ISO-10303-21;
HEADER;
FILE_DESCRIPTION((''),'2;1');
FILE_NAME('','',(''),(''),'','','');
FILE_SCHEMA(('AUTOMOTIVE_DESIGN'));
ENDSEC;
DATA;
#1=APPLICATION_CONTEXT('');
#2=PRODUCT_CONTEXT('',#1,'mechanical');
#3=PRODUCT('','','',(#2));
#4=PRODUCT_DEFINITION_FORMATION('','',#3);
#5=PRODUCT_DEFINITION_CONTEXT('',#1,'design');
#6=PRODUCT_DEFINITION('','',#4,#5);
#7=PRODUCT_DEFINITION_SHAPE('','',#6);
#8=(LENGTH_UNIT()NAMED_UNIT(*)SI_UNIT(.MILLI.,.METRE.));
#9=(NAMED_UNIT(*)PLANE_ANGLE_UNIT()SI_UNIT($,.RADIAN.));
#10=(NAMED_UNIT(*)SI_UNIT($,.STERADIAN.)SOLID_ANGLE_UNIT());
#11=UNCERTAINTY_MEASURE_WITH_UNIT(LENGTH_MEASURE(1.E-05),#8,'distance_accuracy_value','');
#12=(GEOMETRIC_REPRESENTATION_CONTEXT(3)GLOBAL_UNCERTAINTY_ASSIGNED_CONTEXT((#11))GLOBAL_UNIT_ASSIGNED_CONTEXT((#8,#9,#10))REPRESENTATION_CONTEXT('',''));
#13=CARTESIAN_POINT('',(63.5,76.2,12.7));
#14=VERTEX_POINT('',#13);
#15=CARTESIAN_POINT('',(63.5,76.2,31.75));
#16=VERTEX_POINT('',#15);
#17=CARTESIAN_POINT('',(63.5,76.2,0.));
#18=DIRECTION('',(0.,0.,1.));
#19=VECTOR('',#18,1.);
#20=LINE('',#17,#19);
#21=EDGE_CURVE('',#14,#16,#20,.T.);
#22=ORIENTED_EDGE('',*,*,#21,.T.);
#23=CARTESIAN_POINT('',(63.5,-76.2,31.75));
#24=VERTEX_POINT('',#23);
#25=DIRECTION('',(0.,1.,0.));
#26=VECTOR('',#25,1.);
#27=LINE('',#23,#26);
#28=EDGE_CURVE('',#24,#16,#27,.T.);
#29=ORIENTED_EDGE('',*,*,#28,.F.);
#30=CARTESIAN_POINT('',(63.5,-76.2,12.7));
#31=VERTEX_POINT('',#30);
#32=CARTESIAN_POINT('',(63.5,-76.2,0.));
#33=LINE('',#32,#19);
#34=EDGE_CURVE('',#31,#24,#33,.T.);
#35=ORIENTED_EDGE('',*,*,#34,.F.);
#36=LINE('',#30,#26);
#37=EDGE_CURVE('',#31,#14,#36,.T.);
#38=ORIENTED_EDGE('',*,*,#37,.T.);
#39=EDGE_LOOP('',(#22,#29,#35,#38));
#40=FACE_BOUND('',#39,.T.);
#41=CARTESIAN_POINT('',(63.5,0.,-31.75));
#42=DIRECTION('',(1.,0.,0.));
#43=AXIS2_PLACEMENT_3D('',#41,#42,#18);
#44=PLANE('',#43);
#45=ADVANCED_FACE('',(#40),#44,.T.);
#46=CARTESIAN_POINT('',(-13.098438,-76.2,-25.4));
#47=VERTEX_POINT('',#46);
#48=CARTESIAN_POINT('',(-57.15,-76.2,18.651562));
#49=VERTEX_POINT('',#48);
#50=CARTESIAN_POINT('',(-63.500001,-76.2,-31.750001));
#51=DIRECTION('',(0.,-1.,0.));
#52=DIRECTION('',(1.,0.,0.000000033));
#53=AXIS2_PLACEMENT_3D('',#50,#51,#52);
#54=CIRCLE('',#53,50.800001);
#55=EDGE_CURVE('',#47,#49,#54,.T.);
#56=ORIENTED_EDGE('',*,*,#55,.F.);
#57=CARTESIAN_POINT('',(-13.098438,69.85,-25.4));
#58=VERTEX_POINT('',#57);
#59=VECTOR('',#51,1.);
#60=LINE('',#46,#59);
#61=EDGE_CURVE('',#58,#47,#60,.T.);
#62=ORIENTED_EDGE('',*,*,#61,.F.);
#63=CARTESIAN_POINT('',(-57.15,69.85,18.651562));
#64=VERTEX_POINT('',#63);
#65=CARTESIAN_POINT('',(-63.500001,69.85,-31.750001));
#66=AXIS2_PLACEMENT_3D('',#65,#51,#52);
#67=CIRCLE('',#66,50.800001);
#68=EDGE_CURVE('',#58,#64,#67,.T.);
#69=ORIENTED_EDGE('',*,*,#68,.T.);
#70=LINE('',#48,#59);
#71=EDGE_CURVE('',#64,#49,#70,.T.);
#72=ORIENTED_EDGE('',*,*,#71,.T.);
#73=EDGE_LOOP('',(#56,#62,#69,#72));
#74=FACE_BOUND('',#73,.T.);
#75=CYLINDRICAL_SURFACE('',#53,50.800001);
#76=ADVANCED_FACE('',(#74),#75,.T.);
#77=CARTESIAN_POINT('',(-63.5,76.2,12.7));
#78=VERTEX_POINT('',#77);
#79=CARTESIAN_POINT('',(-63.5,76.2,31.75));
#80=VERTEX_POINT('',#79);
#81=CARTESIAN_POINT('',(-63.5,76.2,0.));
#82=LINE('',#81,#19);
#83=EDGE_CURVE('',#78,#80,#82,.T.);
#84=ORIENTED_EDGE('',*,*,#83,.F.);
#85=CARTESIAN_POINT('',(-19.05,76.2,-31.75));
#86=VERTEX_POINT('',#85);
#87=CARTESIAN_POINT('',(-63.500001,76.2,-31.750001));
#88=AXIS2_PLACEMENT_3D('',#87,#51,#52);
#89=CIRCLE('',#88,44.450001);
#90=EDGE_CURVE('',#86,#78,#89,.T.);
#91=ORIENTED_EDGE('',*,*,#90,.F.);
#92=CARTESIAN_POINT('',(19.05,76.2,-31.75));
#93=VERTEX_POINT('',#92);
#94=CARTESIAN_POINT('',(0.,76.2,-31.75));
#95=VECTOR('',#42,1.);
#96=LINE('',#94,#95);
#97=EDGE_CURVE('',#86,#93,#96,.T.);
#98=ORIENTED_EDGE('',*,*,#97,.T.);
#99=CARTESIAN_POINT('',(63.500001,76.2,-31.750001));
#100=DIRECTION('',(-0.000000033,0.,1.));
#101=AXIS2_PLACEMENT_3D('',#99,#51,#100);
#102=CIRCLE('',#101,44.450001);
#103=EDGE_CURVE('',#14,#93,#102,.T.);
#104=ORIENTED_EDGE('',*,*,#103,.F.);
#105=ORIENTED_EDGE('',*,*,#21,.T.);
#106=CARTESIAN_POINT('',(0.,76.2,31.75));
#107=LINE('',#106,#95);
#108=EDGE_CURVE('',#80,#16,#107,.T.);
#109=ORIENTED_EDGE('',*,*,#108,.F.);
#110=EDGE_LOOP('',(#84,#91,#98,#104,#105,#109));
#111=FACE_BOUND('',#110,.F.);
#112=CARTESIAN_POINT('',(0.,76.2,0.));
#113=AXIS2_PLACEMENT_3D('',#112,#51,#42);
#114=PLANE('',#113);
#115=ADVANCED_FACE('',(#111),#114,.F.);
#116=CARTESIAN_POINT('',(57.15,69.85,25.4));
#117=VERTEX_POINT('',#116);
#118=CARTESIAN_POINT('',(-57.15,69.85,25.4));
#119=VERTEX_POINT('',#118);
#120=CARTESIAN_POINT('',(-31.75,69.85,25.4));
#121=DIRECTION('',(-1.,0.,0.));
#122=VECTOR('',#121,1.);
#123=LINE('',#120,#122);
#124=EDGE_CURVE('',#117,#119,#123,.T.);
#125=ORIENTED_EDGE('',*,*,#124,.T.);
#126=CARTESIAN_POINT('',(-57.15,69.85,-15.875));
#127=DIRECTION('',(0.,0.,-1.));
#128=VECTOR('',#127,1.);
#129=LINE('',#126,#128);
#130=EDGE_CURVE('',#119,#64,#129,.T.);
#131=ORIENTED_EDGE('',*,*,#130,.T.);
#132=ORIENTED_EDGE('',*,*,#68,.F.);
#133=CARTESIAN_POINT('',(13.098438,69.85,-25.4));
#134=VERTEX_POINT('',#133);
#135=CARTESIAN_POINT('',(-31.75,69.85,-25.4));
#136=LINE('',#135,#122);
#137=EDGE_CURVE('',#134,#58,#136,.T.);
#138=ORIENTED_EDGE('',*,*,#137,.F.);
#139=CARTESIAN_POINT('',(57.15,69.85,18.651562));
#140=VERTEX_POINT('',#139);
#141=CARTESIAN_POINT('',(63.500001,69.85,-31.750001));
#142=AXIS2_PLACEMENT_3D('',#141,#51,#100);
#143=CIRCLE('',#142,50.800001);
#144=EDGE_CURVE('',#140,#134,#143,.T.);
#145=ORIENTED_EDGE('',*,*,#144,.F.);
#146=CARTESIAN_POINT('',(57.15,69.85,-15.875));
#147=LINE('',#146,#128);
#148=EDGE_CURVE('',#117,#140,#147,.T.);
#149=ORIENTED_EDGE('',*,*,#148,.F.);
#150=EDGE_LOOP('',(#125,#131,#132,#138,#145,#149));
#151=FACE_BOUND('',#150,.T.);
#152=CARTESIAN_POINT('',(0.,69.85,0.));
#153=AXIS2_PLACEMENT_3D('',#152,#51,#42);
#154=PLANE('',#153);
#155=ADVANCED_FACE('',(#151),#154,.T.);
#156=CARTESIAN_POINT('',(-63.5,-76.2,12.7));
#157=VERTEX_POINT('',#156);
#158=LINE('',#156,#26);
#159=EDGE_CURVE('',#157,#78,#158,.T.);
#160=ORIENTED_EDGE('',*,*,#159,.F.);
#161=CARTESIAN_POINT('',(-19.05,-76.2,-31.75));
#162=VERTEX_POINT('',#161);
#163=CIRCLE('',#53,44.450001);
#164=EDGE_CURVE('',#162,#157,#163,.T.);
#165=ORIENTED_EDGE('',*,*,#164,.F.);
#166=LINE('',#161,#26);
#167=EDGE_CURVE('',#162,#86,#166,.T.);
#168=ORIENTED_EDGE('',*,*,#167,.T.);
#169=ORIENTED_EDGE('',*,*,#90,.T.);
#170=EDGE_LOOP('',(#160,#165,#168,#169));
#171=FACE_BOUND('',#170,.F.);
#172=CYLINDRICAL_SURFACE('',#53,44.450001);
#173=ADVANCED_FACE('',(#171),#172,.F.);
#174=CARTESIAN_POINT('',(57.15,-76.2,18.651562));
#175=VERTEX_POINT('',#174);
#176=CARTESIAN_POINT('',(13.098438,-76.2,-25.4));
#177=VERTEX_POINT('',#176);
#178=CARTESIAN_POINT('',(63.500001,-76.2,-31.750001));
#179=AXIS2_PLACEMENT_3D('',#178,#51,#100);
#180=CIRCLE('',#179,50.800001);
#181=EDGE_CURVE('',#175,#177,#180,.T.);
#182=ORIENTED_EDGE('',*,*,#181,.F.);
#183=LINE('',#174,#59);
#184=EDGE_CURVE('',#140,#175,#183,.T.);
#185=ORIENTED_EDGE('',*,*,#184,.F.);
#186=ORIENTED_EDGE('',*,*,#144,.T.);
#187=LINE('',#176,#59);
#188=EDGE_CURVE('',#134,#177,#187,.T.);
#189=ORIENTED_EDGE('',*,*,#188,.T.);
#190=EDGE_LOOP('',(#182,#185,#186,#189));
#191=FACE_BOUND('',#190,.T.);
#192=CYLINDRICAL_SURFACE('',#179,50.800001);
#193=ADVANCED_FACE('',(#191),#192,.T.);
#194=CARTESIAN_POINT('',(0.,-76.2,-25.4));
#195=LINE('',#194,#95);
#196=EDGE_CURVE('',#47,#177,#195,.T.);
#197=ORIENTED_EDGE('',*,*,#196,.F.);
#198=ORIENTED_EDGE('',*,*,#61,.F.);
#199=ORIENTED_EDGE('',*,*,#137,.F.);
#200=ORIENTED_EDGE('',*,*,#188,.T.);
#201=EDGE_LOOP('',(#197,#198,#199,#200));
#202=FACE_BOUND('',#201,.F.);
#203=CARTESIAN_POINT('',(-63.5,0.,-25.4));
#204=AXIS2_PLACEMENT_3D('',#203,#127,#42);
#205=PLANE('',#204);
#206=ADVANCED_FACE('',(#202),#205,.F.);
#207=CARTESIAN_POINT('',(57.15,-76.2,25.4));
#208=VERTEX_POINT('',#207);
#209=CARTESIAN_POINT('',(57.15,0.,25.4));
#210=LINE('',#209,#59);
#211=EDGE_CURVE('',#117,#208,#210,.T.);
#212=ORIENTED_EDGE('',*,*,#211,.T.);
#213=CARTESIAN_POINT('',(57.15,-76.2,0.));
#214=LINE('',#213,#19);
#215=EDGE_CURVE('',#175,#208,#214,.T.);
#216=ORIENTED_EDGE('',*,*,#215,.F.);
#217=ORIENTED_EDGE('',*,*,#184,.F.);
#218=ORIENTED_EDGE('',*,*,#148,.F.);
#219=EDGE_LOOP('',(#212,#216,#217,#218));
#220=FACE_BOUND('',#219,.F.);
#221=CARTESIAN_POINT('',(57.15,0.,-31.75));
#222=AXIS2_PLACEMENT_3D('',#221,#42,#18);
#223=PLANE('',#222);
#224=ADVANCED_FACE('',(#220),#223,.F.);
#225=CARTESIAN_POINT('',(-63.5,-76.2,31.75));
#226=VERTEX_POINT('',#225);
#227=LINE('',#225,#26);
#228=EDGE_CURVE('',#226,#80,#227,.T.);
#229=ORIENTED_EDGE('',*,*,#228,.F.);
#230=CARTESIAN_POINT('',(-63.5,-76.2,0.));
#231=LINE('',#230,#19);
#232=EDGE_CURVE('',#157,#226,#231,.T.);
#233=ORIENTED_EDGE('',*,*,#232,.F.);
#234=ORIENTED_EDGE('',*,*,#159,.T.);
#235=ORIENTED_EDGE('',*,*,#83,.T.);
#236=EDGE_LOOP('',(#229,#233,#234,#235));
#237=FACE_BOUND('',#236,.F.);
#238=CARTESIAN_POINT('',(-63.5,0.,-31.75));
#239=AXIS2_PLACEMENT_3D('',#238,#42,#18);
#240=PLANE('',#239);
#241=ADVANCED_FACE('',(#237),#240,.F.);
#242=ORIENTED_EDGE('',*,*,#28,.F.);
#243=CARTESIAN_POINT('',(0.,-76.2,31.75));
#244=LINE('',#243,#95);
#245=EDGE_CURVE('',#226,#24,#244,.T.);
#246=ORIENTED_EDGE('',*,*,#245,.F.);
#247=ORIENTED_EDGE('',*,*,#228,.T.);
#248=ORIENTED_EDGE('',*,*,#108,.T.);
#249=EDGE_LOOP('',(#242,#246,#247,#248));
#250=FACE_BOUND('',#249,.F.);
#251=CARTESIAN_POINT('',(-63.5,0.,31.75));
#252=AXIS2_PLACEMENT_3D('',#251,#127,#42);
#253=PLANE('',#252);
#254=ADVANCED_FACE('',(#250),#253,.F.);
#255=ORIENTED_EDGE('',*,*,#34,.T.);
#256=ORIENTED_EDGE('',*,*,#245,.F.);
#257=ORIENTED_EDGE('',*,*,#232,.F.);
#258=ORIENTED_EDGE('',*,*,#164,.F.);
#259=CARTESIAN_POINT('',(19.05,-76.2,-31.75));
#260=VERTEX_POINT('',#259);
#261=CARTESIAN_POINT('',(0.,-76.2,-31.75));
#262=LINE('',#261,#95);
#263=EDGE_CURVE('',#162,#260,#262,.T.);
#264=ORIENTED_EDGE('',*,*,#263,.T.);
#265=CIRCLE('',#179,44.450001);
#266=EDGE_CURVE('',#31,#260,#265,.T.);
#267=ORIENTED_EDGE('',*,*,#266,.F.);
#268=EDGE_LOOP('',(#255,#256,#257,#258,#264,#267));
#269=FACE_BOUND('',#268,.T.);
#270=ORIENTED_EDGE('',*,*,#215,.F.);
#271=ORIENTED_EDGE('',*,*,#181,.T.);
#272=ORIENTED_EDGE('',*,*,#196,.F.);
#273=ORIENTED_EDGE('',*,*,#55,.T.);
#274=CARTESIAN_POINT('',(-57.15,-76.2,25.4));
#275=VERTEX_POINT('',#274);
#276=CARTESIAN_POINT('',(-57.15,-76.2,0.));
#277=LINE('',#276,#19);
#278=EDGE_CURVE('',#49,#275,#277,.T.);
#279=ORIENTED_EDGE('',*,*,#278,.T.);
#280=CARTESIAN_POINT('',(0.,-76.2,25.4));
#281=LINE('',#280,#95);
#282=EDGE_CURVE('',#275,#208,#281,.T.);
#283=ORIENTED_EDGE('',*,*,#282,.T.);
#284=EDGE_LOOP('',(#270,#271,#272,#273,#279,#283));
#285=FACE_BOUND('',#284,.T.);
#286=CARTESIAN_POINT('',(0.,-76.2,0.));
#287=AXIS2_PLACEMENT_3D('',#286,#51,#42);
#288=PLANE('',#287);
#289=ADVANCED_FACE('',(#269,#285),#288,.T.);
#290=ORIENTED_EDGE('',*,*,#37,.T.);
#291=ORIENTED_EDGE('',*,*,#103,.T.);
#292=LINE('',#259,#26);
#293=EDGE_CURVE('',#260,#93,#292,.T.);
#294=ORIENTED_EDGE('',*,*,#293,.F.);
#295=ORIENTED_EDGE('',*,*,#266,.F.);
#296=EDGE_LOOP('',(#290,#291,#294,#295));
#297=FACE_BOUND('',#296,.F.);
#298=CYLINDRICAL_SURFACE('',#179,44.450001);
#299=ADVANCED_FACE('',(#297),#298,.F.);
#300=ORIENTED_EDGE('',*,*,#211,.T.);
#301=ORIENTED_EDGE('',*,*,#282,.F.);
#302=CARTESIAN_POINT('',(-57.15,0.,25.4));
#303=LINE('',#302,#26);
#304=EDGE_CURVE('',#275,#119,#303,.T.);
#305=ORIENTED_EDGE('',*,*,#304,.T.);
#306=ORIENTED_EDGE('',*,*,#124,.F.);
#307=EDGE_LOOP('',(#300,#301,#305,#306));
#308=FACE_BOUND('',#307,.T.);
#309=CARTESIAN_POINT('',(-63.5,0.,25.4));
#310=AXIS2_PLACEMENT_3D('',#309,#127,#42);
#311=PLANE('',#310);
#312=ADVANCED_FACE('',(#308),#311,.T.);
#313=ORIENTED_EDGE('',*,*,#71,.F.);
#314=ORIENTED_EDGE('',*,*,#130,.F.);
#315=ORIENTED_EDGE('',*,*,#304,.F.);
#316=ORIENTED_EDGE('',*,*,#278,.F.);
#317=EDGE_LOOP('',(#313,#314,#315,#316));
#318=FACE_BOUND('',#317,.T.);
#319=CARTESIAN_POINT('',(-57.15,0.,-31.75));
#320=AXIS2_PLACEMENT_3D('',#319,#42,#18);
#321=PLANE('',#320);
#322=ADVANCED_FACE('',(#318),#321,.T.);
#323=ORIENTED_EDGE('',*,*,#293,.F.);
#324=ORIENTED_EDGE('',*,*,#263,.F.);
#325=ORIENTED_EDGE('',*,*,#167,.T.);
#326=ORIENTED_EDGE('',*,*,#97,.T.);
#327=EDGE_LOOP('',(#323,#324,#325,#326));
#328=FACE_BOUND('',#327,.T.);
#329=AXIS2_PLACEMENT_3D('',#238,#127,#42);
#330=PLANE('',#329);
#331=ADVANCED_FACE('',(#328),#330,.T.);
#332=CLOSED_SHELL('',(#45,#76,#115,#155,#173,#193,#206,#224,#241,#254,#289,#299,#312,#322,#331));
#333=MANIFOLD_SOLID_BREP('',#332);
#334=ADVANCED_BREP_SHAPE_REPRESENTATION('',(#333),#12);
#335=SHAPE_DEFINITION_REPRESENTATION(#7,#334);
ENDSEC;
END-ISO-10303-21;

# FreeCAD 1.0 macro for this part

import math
import FreeCAD as App
import Part
import Sketcher
Q = App.Units.Quantity


def faces_at(feature, points):
    """Names of the faces that lie closest to the given points."""
    faces = feature.Shape.Faces
    near = lambda p: min(range(len(faces)), key=lambda i: faces[i].distToShape(Part.Vertex(*p))[0])
    return sorted({f"Face{near(p) + 1}" for p in points})

doc = App.newDocument("Part")
params = doc.addObject("Spreadsheet::Sheet", "Params")
for row, (alias, value) in enumerate([
    ("sketch1_width", "5 in"),
    ("sketch1_height", "2.5 in"),
    ("pad1_length", "6 in"),
    ("sketch2_radius", "1.7500001 in"),
    ("thickness_wall", "0.25 in"),
], start=1):
    params.set(f"A{row}", alias)
    params.set(f"B{row}", "=" + value)
    params.setAlias(f"B{row}", alias)

body = doc.addObject("PartDesign::Body", "Body")

sketch1 = body.newObject("Sketcher::SketchObject", "Sketch")
sketch1.AttachmentSupport = (doc.getObject("XZ_Plane"), [""])
sketch1.MapMode = "FlatFace"
sketch1.addGeometry(Part.LineSegment(App.Vector(-63.5, 31.75, 0), App.Vector(-63.5, -31.75, 0)), False)
sketch1.addGeometry(Part.LineSegment(App.Vector(-63.5, -31.75, 0), App.Vector(63.5, -31.75, 0)), False)
sketch1.addGeometry(Part.LineSegment(App.Vector(63.5, -31.75, 0), App.Vector(63.5, 31.75, 0)), False)
sketch1.addGeometry(Part.LineSegment(App.Vector(63.5, 31.75, 0), App.Vector(-63.5, 31.75, 0)), False)
sketch1.addConstraint(Sketcher.Constraint("Coincident", 0, 2, 1, 1))
sketch1.addConstraint(Sketcher.Constraint("Coincident", 1, 2, 2, 1))
sketch1.addConstraint(Sketcher.Constraint("Coincident", 2, 2, 3, 1))
sketch1.addConstraint(Sketcher.Constraint("Coincident", 3, 2, 0, 1))
sketch1.addConstraint(Sketcher.Constraint("Vertical", 0))
sketch1.addConstraint(Sketcher.Constraint("Horizontal", 1))
sketch1.addConstraint(Sketcher.Constraint("Vertical", 2))
sketch1.addConstraint(Sketcher.Constraint("Horizontal", 3))
sketch1.addConstraint(Sketcher.Constraint("Symmetric", 0, 2, 2, 2, -1, 1))
sketch1.addConstraint(Sketcher.Constraint("DistanceX", 1, 1, 1, 2, Q("5 in")))
sketch1.addConstraint(Sketcher.Constraint("DistanceY", 0, 2, 0, 1, Q("2.5 in")))
sketch1.setExpression("Constraints[9]", "Params.sketch1_width")
sketch1.setExpression("Constraints[10]", "Params.sketch1_height")
pad1 = body.newObject("PartDesign::Pad", "Pad")
pad1.Profile = sketch1
pad1.setExpression("Length", "Params.pad1_length")
pad1.Midplane = True

sketch2 = body.newObject("Sketcher::SketchObject", "Sketch001")
sketch2.AttachmentSupport = (doc.getObject("XZ_Plane"), [""])
sketch2.MapMode = "FlatFace"
sketch2.AttachmentOffset = App.Placement(App.Vector(0, 0, 3 * 25.4), App.Rotation())
sketch2.addGeometry(Part.LineSegment(App.Vector(63.5, -31.75, 0), App.Vector(63.5, 12.7, 0)), False)
sketch2.addGeometry(Part.ArcOfCircle(Part.Circle(App.Vector(63.500001, -31.750001, 0), App.Vector(0, 0, 1), 44.450001), math.radians(90.000002), math.radians(179.999998)), False)
sketch2.addGeometry(Part.LineSegment(App.Vector(19.05, -31.75, 0), App.Vector(63.5, -31.75, 0)), False)
sketch2.addGeometry(Part.ArcOfCircle(Part.Circle(App.Vector(-63.500001, -31.750001, 0), App.Vector(0, 0, 1), 44.450001), math.radians(0.000002), math.radians(89.999998)), False)
sketch2.addGeometry(Part.LineSegment(App.Vector(-63.5, 12.7, 0), App.Vector(-63.5, -31.75, 0)), False)
sketch2.addGeometry(Part.LineSegment(App.Vector(-63.5, -31.75, 0), App.Vector(-19.05, -31.75, 0)), False)
sketch2.addConstraint(Sketcher.Constraint("Coincident", 0, 2, 1, 1))
sketch2.addConstraint(Sketcher.Constraint("Coincident", 1, 2, 2, 1))
sketch2.addConstraint(Sketcher.Constraint("Coincident", 2, 2, 0, 1))
sketch2.addConstraint(Sketcher.Constraint("Coincident", 3, 2, 4, 1))
sketch2.addConstraint(Sketcher.Constraint("Coincident", 4, 2, 5, 1))
sketch2.addConstraint(Sketcher.Constraint("Coincident", 5, 2, 3, 1))
sketch2.addConstraint(Sketcher.Constraint("Vertical", 0))
sketch2.addConstraint(Sketcher.Constraint("Horizontal", 2))
sketch2.addConstraint(Sketcher.Constraint("Vertical", 4))
sketch2.addConstraint(Sketcher.Constraint("Horizontal", 5))
sketch2.addConstraint(Sketcher.Constraint("Coincident", 2, 2, 1, 3))
sketch2.addConstraint(Sketcher.Constraint("Coincident", 4, 2, 3, 3))
sketch2.addConstraint(Sketcher.Constraint("Equal", 1, 3))
sketch2.addConstraint(Sketcher.Constraint("Symmetric", 1, 3, 3, 3, -2))
sketch2.addConstraint(Sketcher.Constraint("Radius", 1, Q("1.7500001 in")))
sketch2.addConstraint(Sketcher.Constraint("DistanceX", 3, 3, 1, 3, Q("5.0000001 in")))
sketch2.addConstraint(Sketcher.Constraint("DistanceY", -1, 1, 0, 2, Q("0.5 in")))
sketch2.setExpression("Constraints[14]", "Params.sketch2_radius")
pocket1 = body.newObject("PartDesign::Pocket", "Pocket")
pocket1.Profile = sketch2
pocket1.Type = "ThroughAll"
doc.recompute()

thickness = body.newObject("PartDesign::Thickness", "Thickness")
thickness.Base = (pocket1, faces_at(pocket1, [(0, -76.2, 0)]))
thickness.setExpression("Value", "Params.thickness_wall")
thickness.Reversed = True
thickness.Join = "Arc"

doc.recompute()
